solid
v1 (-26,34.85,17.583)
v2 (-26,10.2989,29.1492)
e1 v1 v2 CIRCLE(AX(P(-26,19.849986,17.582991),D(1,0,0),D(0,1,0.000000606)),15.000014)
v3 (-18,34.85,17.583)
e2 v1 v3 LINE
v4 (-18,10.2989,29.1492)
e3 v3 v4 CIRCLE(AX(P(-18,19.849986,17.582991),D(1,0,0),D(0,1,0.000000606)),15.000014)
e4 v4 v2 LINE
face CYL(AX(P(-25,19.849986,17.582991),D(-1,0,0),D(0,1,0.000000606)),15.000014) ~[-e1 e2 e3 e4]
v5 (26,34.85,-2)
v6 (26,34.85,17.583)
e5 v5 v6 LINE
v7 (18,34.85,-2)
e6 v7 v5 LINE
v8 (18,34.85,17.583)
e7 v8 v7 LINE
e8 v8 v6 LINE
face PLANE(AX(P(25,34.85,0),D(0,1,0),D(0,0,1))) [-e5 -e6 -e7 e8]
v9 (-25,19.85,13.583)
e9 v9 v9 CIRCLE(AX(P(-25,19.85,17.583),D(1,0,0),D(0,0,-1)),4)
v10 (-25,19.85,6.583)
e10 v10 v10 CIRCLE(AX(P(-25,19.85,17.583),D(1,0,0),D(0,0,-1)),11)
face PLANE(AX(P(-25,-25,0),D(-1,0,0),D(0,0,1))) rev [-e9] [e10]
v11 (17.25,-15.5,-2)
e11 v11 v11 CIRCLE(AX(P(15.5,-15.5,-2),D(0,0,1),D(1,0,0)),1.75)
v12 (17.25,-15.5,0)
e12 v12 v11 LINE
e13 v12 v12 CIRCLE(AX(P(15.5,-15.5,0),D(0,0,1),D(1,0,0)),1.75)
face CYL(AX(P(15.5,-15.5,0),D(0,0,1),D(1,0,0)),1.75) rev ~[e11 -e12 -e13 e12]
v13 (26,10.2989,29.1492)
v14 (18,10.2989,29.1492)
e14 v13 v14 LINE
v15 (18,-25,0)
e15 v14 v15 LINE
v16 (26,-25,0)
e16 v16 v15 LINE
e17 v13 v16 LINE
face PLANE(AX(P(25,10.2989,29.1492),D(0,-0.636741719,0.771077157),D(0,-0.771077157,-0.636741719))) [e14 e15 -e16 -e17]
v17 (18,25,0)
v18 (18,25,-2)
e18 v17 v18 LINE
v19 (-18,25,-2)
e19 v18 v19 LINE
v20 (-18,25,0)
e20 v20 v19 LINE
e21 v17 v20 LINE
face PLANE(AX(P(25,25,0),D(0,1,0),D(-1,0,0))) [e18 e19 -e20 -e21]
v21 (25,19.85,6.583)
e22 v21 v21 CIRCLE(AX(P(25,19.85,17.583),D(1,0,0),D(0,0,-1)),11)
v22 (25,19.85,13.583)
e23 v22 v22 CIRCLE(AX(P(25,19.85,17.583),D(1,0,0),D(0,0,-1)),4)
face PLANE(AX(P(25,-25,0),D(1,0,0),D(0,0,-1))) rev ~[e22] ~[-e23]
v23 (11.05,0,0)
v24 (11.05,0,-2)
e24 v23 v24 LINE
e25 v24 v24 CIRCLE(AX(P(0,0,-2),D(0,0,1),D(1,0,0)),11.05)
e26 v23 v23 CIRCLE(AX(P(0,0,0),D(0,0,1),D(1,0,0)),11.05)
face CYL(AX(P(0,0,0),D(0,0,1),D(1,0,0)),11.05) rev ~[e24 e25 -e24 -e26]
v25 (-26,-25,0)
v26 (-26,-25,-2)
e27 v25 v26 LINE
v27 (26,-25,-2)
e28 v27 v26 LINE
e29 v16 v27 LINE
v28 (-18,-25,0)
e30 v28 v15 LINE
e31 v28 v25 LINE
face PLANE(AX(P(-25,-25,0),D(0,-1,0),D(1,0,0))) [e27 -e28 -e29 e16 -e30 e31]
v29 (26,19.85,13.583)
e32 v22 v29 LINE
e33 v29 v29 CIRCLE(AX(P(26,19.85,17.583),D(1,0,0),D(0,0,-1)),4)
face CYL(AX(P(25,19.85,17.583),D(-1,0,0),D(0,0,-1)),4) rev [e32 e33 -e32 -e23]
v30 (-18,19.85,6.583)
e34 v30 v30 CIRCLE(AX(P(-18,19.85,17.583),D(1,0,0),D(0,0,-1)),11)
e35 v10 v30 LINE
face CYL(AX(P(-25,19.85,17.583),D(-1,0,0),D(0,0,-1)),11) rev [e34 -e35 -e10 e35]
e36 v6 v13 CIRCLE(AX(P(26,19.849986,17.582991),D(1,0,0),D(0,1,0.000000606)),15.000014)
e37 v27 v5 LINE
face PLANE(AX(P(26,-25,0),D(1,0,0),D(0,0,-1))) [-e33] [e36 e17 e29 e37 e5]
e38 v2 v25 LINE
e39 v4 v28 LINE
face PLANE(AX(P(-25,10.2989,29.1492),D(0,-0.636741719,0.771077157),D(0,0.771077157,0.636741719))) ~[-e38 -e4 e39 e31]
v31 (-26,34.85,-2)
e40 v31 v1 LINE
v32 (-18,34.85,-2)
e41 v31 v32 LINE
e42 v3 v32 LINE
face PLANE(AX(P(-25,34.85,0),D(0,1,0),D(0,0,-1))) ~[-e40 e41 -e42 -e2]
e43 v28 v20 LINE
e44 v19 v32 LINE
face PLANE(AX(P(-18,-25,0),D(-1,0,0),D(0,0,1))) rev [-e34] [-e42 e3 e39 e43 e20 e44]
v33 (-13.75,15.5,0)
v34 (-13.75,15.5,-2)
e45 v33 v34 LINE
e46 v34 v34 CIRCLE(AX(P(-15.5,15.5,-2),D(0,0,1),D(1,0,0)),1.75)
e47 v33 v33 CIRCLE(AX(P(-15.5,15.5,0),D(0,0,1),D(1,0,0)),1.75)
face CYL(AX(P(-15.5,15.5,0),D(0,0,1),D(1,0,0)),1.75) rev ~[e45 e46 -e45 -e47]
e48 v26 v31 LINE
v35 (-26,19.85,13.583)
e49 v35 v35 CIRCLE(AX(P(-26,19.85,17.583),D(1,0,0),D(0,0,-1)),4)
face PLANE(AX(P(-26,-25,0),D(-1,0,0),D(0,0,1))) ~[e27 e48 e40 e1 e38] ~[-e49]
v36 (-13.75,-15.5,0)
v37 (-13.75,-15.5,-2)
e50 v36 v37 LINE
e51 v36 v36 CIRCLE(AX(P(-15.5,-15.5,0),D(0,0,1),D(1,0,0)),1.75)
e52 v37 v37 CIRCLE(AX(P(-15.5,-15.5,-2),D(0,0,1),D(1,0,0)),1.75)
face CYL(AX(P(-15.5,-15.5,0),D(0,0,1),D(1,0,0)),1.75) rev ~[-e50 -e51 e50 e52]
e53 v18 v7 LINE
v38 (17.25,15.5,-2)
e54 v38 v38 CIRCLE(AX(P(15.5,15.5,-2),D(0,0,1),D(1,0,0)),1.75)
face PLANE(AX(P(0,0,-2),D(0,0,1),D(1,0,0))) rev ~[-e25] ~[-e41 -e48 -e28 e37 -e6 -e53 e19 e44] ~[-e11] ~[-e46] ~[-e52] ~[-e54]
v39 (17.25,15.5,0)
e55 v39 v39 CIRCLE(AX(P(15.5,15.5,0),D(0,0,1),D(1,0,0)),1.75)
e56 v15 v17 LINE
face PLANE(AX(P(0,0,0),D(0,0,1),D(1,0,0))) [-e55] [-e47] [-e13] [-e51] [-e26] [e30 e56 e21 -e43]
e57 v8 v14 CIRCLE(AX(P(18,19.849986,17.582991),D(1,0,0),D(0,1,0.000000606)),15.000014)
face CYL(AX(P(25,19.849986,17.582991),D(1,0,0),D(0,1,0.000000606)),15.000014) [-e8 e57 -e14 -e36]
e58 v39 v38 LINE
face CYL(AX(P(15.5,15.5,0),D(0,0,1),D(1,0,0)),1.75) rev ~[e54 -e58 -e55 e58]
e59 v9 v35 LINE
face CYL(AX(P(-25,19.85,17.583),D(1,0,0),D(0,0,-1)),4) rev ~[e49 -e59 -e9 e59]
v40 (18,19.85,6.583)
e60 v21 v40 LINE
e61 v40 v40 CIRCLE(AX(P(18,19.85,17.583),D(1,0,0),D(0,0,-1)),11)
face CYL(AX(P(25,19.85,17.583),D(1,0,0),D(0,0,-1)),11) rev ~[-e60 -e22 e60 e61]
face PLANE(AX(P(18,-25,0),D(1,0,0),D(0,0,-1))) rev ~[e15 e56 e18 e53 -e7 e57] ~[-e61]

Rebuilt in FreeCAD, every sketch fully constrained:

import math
import FreeCAD as App
import Part
import Sketcher


def add_polygon(sketch, points):
    """Adds a closed chain of lines whose ends are joined by coincident constraints."""
    first, n = sketch.GeometryCount, len(points)
    for a, b in zip(points, points[1:] + points[:1]):
        sketch.addGeometry(Part.LineSegment(App.Vector(*a, 0), App.Vector(*b, 0)), False)
    for i in range(n):
        sketch.addConstraint(Sketcher.Constraint("Coincident", first + i, 2, first + (i + 1) % n, 1))

doc = App.newDocument("Part")
params = doc.addObject("Spreadsheet::Sheet", "Params")
for row, (alias, value) in enumerate([
    ("sketch1_diameter", "3.5 mm"),
    ("sketch1_diameter2", "22.1 mm"),
    ("sketch1_width", "50 mm"),
    ("pad1_length", "2 mm"),
    ("sketch2_diameter", "22 mm"),
    ("sketch2_height", "2 mm"),
    ("sketch2_radius", "15 mm"),
    ("sketch2_width", "50 mm"),
    ("pad2_length", "7 mm"),
    ("sketch3_diameter", "8 mm"),
    ("sketch3_height", "2 mm"),
    ("sketch3_radius", "15 mm"),
    ("pad3_length", "1 mm"),
], start=1):
    params.set(f"A{row}", alias)
    params.set(f"B{row}", "=" + value)
    params.setAlias(f"B{row}", alias)

body = doc.addObject("PartDesign::Body", "Body")

# Sketch on XY plane
sketch1 = body.newObject("Sketcher::SketchObject", "Sketch")
sketch1.AttachmentSupport = (doc.getObject("XY_Plane"), [""])
sketch1.MapMode = "FlatFace"
add_polygon(sketch1, [(25, 25), (-25, 25), (-25, -25), (25, -25)])  # lines 0-3
sketch1.addGeometry(Part.Circle(App.Vector(-15.5, -15.5, 0), App.Vector(0, 0, 1), 1.8), False)  # 4
sketch1.addGeometry(Part.Circle(App.Vector(15.5, -15.5, 0), App.Vector(0, 0, 1), 1.8), False)  # 5
sketch1.addGeometry(Part.Circle(App.Vector(-15.5, 15.5, 0), App.Vector(0, 0, 1), 1.8), False)  # 6
sketch1.addGeometry(Part.Circle(App.Vector(0, 0, 0), App.Vector(0, 0, 1), 11.1), False)  # 7
sketch1.addGeometry(Part.Circle(App.Vector(15.5, 15.5, 0), App.Vector(0, 0, 1), 1.8), False)  # 8
sketch1.addConstraint([
    Sketcher.Constraint("Horizontal", 0),
    Sketcher.Constraint("Vertical", 1),
    Sketcher.Constraint("Horizontal", 2),
    Sketcher.Constraint("Vertical", 3),
    Sketcher.Constraint("Coincident", 7, 3, -1, 1),
    Sketcher.Constraint("Equal", 4, 5),
    Sketcher.Constraint("Equal", 5, 6),
    Sketcher.Constraint("Equal", 6, 8),
    Sketcher.Constraint("Symmetric", 5, 3, 6, 3, -1, 1),
    Sketcher.Constraint("Symmetric", 4, 3, 8, 3, -1, 1),
    Sketcher.Constraint("Symmetric", 0, 2, 2, 2, -1, 1),
    Sketcher.Constraint("Symmetric", 4, 3, 5, 3, -2),
    Sketcher.Constraint("Equal", 2, 1),
    Sketcher.Constraint("Diameter", 4, 3.5),
    Sketcher.Constraint("Diameter", 7, 22.1),
    Sketcher.Constraint("DistanceX", 0, 2, 0, 1, 50.0),
    Sketcher.Constraint("DistanceX", 4, 3, 5, 3, 31.0),
    Sketcher.Constraint("DistanceY", 4, 3, 6, 3, 31.0),
])
sketch1.setExpression("Constraints[17]", "Params.sketch1_diameter")
sketch1.setExpression("Constraints[18]", "Params.sketch1_diameter2")
sketch1.setExpression("Constraints[19]", "Params.sketch1_width")
pad1 = body.newObject("PartDesign::Pad", "Pad")
pad1.Profile = sketch1
pad1.setExpression("Length", "Params.pad1_length")
pad1.Reversed = True

# Sketch on YZ plane
sketch2 = body.newObject("Sketcher::SketchObject", "Sketch001")
sketch2.AttachmentSupport = (doc.getObject("YZ_Plane"), [""])
sketch2.MapMode = "FlatFace"
sketch2.AttachmentOffset = App.Placement(App.Vector(0, 0, 25), App.Rotation())
sketch2.addGeometry([
    Part.LineSegment(App.Vector(10.3, 29.1, 0), App.Vector(-25, 0, 0)),  # 0
    Part.LineSegment(App.Vector(-25, 0, 0), App.Vector(25, 0, 0)),  # 1
    Part.LineSegment(App.Vector(25, 0, 0), App.Vector(25, -2, 0)),  # 2
    Part.LineSegment(App.Vector(25, -2, 0), App.Vector(34.9, -2, 0)),  # 3
    Part.LineSegment(App.Vector(34.9, -2, 0), App.Vector(34.9, 17.6, 0)),  # 4
    Part.ArcOfCircle(Part.Circle(App.Vector(19.9, 17.6, 0), App.Vector(0, 0, 1), 15), math.radians(0), math.radians(130)),  # 5
    Part.Circle(App.Vector(19.9, 17.6, 0), App.Vector(0, 0, 1), 11),  # 6
], False)
sketch2.addConstraint([
    Sketcher.Constraint("Coincident", 0, 2, 1, 1),
    Sketcher.Constraint("Coincident", 1, 2, 2, 1),
    Sketcher.Constraint("Coincident", 2, 2, 3, 1),
    Sketcher.Constraint("Coincident", 3, 2, 4, 1),
    Sketcher.Constraint("Tangent", 4, 2, 5, 1),
    Sketcher.Constraint("Tangent", 5, 2, 0, 1),
    Sketcher.Constraint("Horizontal", 1),
    Sketcher.Constraint("Vertical", 2),
    Sketcher.Constraint("Horizontal", 3),
    Sketcher.Constraint("Vertical", 4),
    Sketcher.Constraint("Coincident", 6, 3, 5, 3),
    Sketcher.Constraint("Symmetric", 0, 2, 1, 2, -1, 1),
    Sketcher.Constraint("Diameter", 6, 22.0),
    Sketcher.Constraint("DistanceY", 2, 2, 2, 1, 2.0),
    Sketcher.Constraint("Radius", 5, 15.0),
    Sketcher.Constraint("DistanceX", 1, 1, 1, 2, 50.0),
    Sketcher.Constraint("DistanceY", 4, 1, 4, 2, 19.583),
    Sketcher.Constraint("DistanceX", -1, 1, 5, 3, 19.85),
])
sketch2.setExpression("Constraints[12]", "Params.sketch2_diameter")
sketch2.setExpression("Constraints[13]", "Params.sketch2_height")
sketch2.setExpression("Constraints[14]", "Params.sketch2_radius")
sketch2.setExpression("Constraints[15]", "Params.sketch2_width")
pad2 = body.newObject("PartDesign::Pad", "Pad001")
pad2.Profile = sketch2
pad2.setExpression("Length", "Params.pad2_length")
pad2.Reversed = True

# Sketch on YZ plane
sketch3 = body.newObject("Sketcher::SketchObject", "Sketch002")
sketch3.AttachmentSupport = (doc.getObject("YZ_Plane"), [""])
sketch3.MapMode = "FlatFace"
sketch3.AttachmentOffset = App.Placement(App.Vector(0, 0, 25), App.Rotation())
sketch3.addGeometry([
    Part.LineSegment(App.Vector(10.3, 29.1, 0), App.Vector(-25, 0, 0)),  # 0
    Part.LineSegment(App.Vector(-25, 0, 0), App.Vector(-25, -2, 0)),  # 1
    Part.LineSegment(App.Vector(-25, -2, 0), App.Vector(34.9, -2, 0)),  # 2
    Part.LineSegment(App.Vector(34.9, -2, 0), App.Vector(34.9, 17.6, 0)),  # 3
    Part.ArcOfCircle(Part.Circle(App.Vector(19.9, 17.6, 0), App.Vector(0, 0, 1), 15), math.radians(0), math.radians(130)),  # 4
    Part.Circle(App.Vector(19.9, 17.6, 0), App.Vector(0, 0, 1), 4),  # 5
], False)
sketch3.addConstraint([
    Sketcher.Constraint("Coincident", 0, 2, 1, 1),
    Sketcher.Constraint("Coincident", 1, 2, 2, 1),
    Sketcher.Constraint("Coincident", 2, 2, 3, 1),
    Sketcher.Constraint("Tangent", 3, 2, 4, 1),
    Sketcher.Constraint("Tangent", 4, 2, 0, 1),
    Sketcher.Constraint("Vertical", 1),
    Sketcher.Constraint("Horizontal", 2),
    Sketcher.Constraint("Vertical", 3),
    Sketcher.Constraint("Coincident", 5, 3, 4, 3),
    Sketcher.Constraint("PointOnObject", 0, 2, -1),
    Sketcher.Constraint("Diameter", 5, 8.0),
    Sketcher.Constraint("DistanceY", 1, 2, 1, 1, 2.0),
    Sketcher.Constraint("Radius", 4, 15.0),
    Sketcher.Constraint("DistanceY", 3, 1, 3, 2, 19.583),
    Sketcher.Constraint("DistanceX", -1, 1, 4, 3, 19.85),
    Sketcher.Constraint("DistanceX", 0, 2, -1, 1, 25.0),
])
sketch3.setExpression("Constraints[10]", "Params.sketch3_diameter")
sketch3.setExpression("Constraints[11]", "Params.sketch3_height")
sketch3.setExpression("Constraints[12]", "Params.sketch3_radius")
pad3 = body.newObject("PartDesign::Pad", "Pad002")
pad3.Profile = sketch3
pad3.setExpression("Length", "Params.pad3_length")
doc.recompute()

mirrored = body.newObject("PartDesign::Mirrored", "Mirrored")
mirrored.Originals = [pad2, pad3]
mirrored.MirrorPlane = (doc.getObject("YZ_Plane"), [""])
body.Tip = mirrored

doc.recompute()
